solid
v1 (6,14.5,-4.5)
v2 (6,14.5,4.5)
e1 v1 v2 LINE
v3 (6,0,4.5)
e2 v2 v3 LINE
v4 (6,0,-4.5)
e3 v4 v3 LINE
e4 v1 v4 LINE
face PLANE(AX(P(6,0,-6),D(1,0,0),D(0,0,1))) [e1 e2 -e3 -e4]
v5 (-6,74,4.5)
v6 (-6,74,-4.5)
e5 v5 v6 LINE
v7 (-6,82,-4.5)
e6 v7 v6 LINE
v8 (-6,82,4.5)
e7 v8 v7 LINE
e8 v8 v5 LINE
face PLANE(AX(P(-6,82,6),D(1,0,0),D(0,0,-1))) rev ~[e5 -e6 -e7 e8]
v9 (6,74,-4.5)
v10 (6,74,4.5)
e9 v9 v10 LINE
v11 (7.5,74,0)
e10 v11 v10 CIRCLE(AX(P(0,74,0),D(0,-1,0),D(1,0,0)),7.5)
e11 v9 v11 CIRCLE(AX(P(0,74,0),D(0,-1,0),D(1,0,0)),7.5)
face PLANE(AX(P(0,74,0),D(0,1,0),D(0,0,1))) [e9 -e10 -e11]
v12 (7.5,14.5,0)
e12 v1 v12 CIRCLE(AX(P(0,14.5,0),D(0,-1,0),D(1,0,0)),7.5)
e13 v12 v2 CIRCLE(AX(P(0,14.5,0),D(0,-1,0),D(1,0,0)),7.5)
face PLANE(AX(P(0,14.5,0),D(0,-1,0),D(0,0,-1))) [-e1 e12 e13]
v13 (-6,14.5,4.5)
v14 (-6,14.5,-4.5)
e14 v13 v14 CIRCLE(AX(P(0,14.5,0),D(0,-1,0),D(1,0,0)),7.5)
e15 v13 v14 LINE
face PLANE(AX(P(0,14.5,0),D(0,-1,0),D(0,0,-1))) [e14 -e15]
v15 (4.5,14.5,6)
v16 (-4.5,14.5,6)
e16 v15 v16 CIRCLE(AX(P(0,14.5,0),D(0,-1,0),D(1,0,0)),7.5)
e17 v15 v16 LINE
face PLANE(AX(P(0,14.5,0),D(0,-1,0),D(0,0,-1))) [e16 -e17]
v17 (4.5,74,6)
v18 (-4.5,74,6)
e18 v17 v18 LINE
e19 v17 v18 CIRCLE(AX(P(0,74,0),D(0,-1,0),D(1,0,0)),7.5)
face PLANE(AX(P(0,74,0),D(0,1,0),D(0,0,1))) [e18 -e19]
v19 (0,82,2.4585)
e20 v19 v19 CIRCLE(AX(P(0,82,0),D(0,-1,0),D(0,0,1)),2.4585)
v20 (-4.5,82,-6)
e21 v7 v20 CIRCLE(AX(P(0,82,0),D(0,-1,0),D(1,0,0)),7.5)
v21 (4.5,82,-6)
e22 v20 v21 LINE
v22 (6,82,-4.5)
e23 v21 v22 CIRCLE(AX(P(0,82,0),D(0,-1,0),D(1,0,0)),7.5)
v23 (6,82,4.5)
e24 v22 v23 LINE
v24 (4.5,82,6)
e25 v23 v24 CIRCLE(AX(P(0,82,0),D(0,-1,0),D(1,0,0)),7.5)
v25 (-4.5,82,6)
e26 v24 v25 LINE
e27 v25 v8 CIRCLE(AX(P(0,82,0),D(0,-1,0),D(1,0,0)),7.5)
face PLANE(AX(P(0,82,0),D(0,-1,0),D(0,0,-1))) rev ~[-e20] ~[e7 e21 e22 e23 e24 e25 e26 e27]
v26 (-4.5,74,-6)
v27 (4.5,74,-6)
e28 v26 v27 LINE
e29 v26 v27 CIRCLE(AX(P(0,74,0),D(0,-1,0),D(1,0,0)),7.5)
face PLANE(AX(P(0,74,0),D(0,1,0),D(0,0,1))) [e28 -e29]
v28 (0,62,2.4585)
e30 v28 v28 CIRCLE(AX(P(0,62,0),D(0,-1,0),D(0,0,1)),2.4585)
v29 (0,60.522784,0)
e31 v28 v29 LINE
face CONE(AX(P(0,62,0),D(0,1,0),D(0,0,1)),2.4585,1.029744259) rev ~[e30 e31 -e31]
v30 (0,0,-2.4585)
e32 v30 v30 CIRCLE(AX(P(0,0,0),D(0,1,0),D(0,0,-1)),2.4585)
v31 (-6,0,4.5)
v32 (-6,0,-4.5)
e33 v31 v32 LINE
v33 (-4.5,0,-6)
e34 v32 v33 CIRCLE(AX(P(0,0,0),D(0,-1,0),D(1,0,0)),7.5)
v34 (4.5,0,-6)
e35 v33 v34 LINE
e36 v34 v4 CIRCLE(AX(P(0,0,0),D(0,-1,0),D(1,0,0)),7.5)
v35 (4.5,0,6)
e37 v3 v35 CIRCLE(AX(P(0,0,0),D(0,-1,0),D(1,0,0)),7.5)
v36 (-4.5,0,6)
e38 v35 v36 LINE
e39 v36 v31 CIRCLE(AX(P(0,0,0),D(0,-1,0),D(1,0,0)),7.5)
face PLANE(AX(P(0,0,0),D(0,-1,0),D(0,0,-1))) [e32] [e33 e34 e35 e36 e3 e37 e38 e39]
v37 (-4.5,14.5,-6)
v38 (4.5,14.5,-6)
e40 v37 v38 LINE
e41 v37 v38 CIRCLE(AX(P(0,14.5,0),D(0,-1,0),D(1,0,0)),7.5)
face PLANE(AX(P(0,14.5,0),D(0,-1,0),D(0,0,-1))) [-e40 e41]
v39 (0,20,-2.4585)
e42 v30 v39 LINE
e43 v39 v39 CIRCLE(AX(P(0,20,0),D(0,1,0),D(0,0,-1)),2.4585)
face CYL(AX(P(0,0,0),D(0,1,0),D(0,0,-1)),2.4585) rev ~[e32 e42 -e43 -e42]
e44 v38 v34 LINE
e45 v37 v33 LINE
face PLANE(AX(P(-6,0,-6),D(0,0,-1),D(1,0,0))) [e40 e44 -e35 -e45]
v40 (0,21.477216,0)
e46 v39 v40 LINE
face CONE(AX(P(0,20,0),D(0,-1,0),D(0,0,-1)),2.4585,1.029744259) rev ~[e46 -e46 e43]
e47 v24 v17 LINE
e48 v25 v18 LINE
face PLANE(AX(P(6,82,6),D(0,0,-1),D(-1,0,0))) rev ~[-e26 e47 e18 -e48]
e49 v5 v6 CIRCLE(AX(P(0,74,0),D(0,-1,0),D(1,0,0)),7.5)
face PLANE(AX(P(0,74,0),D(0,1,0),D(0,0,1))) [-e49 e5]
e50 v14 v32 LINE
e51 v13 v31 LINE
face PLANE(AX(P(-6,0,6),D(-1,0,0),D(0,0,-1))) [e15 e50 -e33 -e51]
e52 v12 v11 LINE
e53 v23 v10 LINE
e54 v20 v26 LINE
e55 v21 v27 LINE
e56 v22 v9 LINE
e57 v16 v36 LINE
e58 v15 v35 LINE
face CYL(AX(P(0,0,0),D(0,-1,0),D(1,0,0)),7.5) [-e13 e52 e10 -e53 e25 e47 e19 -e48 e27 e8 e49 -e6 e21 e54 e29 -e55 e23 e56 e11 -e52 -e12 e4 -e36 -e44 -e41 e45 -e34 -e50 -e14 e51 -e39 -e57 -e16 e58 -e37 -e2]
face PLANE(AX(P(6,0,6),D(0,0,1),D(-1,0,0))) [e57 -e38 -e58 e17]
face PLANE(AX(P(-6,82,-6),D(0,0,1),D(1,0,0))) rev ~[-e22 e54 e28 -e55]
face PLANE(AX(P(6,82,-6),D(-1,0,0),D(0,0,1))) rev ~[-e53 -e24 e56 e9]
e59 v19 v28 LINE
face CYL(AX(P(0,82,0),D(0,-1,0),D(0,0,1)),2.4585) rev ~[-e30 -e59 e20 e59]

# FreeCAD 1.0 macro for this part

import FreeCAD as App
import Part
import Sketcher
from FreeCAD import Vector

doc = App.newDocument("Part")
params = doc.addObject("Spreadsheet::Sheet", "Params")
for row, (alias, value) in enumerate([
    ("sketch1_diameter", "15 mm"),
    ("pad1_length", "82 mm"),
    ("pocket1_length", "14.5 mm"),
    ("pocket2_length", "8 mm"),
    ("hole_diameter", "4.917 mm"),
    ("hole_depth", "20 mm"),
    ("hole2_diameter", "4.917 mm"),
    ("hole2_depth", "20 mm"),
], start=1):
    params.set(f"A{row}", alias)
    params.set(f"B{row}", "=" + value)
    params.setAlias(f"B{row}", alias)

body = doc.addObject("PartDesign::Body", "Body")

# Sketch on XZ plane
sketch1 = doc.addObject("Sketcher::SketchObject", "Sketch")
body.addObject(sketch1)
sketch1.AttachmentSupport = (doc.XZ_Plane, [""])
sketch1.MapMode = "FlatFace"
sketch1.addGeometry(Part.Circle(Vector(0, 0, 0), Vector(0, 0, 1), 7.5), False)
sketch1.addConstraint([
    Sketcher.Constraint("Coincident", 0, 3, -1, 1),
    Sketcher.Constraint("Diameter", 0, 15.0),
])
sketch1.setExpression("Constraints[1]", "Params.sketch1_diameter")
pad1 = doc.addObject("PartDesign::Pad", "Pad")
body.addObject(pad1)
pad1.Profile = sketch1
pad1.setExpression("Length", "Params.pad1_length")
pad1.Reversed = True

# Sketch on XZ plane
sketch2 = doc.addObject("Sketcher::SketchObject", "Sketch001")
body.addObject(sketch2)
sketch2.AttachmentSupport = (doc.XZ_Plane, [""])
sketch2.MapMode = "FlatFace"
sketch2.addGeometry([
    Part.Circle(Vector(0, 0, 0), Vector(0, 0, 1), 11.1148),  # 0
    Part.LineSegment(Vector(6, -6, 0), Vector(-6, -6, 0)),  # 1
    Part.LineSegment(Vector(-6, -6, 0), Vector(-6, 6, 0)),  # 2
    Part.LineSegment(Vector(-6, 6, 0), Vector(6, 6, 0)),  # 3
    Part.LineSegment(Vector(6, 6, 0), Vector(6, -6, 0)),  # 4
], False)
sketch2.addConstraint([
    Sketcher.Constraint("Coincident", 1, 2, 2, 1),
    Sketcher.Constraint("Coincident", 2, 2, 3, 1),
    Sketcher.Constraint("Coincident", 3, 2, 4, 1),
    Sketcher.Constraint("Coincident", 4, 2, 1, 1),
    Sketcher.Constraint("Horizontal", 1),
    Sketcher.Constraint("Vertical", 2),
    Sketcher.Constraint("Horizontal", 3),
    Sketcher.Constraint("Vertical", 4),
    Sketcher.Constraint("Coincident", 0, 3, -1, 1),
    Sketcher.Constraint("Symmetric", 1, 2, 3, 2, -1, 1),
    Sketcher.Constraint("Equal", 3, 2),
    Sketcher.Constraint("DistanceX", 1, 2, -1, 1, 6.0),
    Sketcher.Constraint("Diameter", 0, 22.2296),
])
pocket1 = doc.addObject("PartDesign::Pocket", "Pocket")
body.addObject(pocket1)
pocket1.Profile = sketch2
pocket1.setExpression("Length", "Params.pocket1_length")

# Sketch on XZ plane
sketch3 = doc.addObject("Sketcher::SketchObject", "Sketch002")
body.addObject(sketch3)
sketch3.AttachmentSupport = (doc.XZ_Plane, [""])
sketch3.MapMode = "FlatFace"
sketch3.AttachmentOffset = App.Placement(Vector(0, 0, -82), App.Rotation())
sketch3.addGeometry([
    Part.Circle(Vector(0, 0, 0), Vector(0, 0, 1), 11.8387),  # 0
    Part.LineSegment(Vector(6, -6, 0), Vector(6, 6, 0)),  # 1
    Part.LineSegment(Vector(6, 6, 0), Vector(-6, 6, 0)),  # 2
    Part.LineSegment(Vector(-6, 6, 0), Vector(-6, -6, 0)),  # 3
    Part.LineSegment(Vector(-6, -6, 0), Vector(6, -6, 0)),  # 4
], False)
sketch3.addConstraint([
    Sketcher.Constraint("Coincident", 1, 2, 2, 1),
    Sketcher.Constraint("Coincident", 2, 2, 3, 1),
    Sketcher.Constraint("Coincident", 3, 2, 4, 1),
    Sketcher.Constraint("Coincident", 4, 2, 1, 1),
    Sketcher.Constraint("Vertical", 1),
    Sketcher.Constraint("Horizontal", 2),
    Sketcher.Constraint("Vertical", 3),
    Sketcher.Constraint("Horizontal", 4),
    Sketcher.Constraint("Coincident", 0, 3, -1, 1),
    Sketcher.Constraint("Symmetric", 1, 2, 3, 2, -1, 1),
    Sketcher.Constraint("Equal", 4, 1),
    Sketcher.Constraint("DistanceX", -1, 1, 1, 2, 6.0),
    Sketcher.Constraint("Diameter", 0, 23.6774),
])
pocket2 = doc.addObject("PartDesign::Pocket", "Pocket001")
body.addObject(pocket2)
pocket2.Profile = sketch3
pocket2.setExpression("Length", "Params.pocket2_length")
pocket2.Reversed = True

# Sketch on XZ plane
sketch4 = doc.addObject("Sketcher::SketchObject", "Sketch003")
body.addObject(sketch4)
sketch4.AttachmentSupport = (doc.XZ_Plane, [""])
sketch4.MapMode = "FlatFace"
sketch4.addGeometry(Part.Circle(Vector(0, 0, 0), Vector(0, 0, 1), 2.4585), False)
sketch4.addConstraint([
    Sketcher.Constraint("Coincident", 0, 3, -1, 1),
    Sketcher.Constraint("Diameter", 0, 4.917),
])
doc.recompute()
hole = doc.addObject("PartDesign::Hole", "Hole")
body.addObject(hole)
hole.Profile = sketch4
hole.ThreadType = "None"
hole.setExpression("Diameter", "Params.hole_diameter")
hole.DepthType = "Dimension"
hole.setExpression("Depth", "Params.hole_depth")
hole.DrillPoint = "Angled"
hole.DrillPointAngle = 118

# Sketch on XZ plane
sketch5 = doc.addObject("Sketcher::SketchObject", "Sketch004")
body.addObject(sketch5)
sketch5.AttachmentSupport = (doc.XZ_Plane, [""])
sketch5.MapMode = "FlatFace"
sketch5.AttachmentOffset = App.Placement(Vector(0, 0, -82), App.Rotation())
sketch5.addGeometry(Part.Circle(Vector(0, 0, 0), Vector(0, 0, 1), 2.4585), False)
sketch5.addConstraint([
    Sketcher.Constraint("Coincident", 0, 3, -1, 1),
    Sketcher.Constraint("Diameter", 0, 4.917),
])
doc.recompute()
hole2 = doc.addObject("PartDesign::Hole", "Hole001")
body.addObject(hole2)
hole2.Profile = sketch5
hole2.ThreadType = "None"
hole2.setExpression("Diameter", "Params.hole2_diameter")
hole2.DepthType = "Dimension"
hole2.setExpression("Depth", "Params.hole2_depth")
hole2.DrillPoint = "Angled"
hole2.DrillPointAngle = 118
hole2.Reversed = True

doc.recompute()
